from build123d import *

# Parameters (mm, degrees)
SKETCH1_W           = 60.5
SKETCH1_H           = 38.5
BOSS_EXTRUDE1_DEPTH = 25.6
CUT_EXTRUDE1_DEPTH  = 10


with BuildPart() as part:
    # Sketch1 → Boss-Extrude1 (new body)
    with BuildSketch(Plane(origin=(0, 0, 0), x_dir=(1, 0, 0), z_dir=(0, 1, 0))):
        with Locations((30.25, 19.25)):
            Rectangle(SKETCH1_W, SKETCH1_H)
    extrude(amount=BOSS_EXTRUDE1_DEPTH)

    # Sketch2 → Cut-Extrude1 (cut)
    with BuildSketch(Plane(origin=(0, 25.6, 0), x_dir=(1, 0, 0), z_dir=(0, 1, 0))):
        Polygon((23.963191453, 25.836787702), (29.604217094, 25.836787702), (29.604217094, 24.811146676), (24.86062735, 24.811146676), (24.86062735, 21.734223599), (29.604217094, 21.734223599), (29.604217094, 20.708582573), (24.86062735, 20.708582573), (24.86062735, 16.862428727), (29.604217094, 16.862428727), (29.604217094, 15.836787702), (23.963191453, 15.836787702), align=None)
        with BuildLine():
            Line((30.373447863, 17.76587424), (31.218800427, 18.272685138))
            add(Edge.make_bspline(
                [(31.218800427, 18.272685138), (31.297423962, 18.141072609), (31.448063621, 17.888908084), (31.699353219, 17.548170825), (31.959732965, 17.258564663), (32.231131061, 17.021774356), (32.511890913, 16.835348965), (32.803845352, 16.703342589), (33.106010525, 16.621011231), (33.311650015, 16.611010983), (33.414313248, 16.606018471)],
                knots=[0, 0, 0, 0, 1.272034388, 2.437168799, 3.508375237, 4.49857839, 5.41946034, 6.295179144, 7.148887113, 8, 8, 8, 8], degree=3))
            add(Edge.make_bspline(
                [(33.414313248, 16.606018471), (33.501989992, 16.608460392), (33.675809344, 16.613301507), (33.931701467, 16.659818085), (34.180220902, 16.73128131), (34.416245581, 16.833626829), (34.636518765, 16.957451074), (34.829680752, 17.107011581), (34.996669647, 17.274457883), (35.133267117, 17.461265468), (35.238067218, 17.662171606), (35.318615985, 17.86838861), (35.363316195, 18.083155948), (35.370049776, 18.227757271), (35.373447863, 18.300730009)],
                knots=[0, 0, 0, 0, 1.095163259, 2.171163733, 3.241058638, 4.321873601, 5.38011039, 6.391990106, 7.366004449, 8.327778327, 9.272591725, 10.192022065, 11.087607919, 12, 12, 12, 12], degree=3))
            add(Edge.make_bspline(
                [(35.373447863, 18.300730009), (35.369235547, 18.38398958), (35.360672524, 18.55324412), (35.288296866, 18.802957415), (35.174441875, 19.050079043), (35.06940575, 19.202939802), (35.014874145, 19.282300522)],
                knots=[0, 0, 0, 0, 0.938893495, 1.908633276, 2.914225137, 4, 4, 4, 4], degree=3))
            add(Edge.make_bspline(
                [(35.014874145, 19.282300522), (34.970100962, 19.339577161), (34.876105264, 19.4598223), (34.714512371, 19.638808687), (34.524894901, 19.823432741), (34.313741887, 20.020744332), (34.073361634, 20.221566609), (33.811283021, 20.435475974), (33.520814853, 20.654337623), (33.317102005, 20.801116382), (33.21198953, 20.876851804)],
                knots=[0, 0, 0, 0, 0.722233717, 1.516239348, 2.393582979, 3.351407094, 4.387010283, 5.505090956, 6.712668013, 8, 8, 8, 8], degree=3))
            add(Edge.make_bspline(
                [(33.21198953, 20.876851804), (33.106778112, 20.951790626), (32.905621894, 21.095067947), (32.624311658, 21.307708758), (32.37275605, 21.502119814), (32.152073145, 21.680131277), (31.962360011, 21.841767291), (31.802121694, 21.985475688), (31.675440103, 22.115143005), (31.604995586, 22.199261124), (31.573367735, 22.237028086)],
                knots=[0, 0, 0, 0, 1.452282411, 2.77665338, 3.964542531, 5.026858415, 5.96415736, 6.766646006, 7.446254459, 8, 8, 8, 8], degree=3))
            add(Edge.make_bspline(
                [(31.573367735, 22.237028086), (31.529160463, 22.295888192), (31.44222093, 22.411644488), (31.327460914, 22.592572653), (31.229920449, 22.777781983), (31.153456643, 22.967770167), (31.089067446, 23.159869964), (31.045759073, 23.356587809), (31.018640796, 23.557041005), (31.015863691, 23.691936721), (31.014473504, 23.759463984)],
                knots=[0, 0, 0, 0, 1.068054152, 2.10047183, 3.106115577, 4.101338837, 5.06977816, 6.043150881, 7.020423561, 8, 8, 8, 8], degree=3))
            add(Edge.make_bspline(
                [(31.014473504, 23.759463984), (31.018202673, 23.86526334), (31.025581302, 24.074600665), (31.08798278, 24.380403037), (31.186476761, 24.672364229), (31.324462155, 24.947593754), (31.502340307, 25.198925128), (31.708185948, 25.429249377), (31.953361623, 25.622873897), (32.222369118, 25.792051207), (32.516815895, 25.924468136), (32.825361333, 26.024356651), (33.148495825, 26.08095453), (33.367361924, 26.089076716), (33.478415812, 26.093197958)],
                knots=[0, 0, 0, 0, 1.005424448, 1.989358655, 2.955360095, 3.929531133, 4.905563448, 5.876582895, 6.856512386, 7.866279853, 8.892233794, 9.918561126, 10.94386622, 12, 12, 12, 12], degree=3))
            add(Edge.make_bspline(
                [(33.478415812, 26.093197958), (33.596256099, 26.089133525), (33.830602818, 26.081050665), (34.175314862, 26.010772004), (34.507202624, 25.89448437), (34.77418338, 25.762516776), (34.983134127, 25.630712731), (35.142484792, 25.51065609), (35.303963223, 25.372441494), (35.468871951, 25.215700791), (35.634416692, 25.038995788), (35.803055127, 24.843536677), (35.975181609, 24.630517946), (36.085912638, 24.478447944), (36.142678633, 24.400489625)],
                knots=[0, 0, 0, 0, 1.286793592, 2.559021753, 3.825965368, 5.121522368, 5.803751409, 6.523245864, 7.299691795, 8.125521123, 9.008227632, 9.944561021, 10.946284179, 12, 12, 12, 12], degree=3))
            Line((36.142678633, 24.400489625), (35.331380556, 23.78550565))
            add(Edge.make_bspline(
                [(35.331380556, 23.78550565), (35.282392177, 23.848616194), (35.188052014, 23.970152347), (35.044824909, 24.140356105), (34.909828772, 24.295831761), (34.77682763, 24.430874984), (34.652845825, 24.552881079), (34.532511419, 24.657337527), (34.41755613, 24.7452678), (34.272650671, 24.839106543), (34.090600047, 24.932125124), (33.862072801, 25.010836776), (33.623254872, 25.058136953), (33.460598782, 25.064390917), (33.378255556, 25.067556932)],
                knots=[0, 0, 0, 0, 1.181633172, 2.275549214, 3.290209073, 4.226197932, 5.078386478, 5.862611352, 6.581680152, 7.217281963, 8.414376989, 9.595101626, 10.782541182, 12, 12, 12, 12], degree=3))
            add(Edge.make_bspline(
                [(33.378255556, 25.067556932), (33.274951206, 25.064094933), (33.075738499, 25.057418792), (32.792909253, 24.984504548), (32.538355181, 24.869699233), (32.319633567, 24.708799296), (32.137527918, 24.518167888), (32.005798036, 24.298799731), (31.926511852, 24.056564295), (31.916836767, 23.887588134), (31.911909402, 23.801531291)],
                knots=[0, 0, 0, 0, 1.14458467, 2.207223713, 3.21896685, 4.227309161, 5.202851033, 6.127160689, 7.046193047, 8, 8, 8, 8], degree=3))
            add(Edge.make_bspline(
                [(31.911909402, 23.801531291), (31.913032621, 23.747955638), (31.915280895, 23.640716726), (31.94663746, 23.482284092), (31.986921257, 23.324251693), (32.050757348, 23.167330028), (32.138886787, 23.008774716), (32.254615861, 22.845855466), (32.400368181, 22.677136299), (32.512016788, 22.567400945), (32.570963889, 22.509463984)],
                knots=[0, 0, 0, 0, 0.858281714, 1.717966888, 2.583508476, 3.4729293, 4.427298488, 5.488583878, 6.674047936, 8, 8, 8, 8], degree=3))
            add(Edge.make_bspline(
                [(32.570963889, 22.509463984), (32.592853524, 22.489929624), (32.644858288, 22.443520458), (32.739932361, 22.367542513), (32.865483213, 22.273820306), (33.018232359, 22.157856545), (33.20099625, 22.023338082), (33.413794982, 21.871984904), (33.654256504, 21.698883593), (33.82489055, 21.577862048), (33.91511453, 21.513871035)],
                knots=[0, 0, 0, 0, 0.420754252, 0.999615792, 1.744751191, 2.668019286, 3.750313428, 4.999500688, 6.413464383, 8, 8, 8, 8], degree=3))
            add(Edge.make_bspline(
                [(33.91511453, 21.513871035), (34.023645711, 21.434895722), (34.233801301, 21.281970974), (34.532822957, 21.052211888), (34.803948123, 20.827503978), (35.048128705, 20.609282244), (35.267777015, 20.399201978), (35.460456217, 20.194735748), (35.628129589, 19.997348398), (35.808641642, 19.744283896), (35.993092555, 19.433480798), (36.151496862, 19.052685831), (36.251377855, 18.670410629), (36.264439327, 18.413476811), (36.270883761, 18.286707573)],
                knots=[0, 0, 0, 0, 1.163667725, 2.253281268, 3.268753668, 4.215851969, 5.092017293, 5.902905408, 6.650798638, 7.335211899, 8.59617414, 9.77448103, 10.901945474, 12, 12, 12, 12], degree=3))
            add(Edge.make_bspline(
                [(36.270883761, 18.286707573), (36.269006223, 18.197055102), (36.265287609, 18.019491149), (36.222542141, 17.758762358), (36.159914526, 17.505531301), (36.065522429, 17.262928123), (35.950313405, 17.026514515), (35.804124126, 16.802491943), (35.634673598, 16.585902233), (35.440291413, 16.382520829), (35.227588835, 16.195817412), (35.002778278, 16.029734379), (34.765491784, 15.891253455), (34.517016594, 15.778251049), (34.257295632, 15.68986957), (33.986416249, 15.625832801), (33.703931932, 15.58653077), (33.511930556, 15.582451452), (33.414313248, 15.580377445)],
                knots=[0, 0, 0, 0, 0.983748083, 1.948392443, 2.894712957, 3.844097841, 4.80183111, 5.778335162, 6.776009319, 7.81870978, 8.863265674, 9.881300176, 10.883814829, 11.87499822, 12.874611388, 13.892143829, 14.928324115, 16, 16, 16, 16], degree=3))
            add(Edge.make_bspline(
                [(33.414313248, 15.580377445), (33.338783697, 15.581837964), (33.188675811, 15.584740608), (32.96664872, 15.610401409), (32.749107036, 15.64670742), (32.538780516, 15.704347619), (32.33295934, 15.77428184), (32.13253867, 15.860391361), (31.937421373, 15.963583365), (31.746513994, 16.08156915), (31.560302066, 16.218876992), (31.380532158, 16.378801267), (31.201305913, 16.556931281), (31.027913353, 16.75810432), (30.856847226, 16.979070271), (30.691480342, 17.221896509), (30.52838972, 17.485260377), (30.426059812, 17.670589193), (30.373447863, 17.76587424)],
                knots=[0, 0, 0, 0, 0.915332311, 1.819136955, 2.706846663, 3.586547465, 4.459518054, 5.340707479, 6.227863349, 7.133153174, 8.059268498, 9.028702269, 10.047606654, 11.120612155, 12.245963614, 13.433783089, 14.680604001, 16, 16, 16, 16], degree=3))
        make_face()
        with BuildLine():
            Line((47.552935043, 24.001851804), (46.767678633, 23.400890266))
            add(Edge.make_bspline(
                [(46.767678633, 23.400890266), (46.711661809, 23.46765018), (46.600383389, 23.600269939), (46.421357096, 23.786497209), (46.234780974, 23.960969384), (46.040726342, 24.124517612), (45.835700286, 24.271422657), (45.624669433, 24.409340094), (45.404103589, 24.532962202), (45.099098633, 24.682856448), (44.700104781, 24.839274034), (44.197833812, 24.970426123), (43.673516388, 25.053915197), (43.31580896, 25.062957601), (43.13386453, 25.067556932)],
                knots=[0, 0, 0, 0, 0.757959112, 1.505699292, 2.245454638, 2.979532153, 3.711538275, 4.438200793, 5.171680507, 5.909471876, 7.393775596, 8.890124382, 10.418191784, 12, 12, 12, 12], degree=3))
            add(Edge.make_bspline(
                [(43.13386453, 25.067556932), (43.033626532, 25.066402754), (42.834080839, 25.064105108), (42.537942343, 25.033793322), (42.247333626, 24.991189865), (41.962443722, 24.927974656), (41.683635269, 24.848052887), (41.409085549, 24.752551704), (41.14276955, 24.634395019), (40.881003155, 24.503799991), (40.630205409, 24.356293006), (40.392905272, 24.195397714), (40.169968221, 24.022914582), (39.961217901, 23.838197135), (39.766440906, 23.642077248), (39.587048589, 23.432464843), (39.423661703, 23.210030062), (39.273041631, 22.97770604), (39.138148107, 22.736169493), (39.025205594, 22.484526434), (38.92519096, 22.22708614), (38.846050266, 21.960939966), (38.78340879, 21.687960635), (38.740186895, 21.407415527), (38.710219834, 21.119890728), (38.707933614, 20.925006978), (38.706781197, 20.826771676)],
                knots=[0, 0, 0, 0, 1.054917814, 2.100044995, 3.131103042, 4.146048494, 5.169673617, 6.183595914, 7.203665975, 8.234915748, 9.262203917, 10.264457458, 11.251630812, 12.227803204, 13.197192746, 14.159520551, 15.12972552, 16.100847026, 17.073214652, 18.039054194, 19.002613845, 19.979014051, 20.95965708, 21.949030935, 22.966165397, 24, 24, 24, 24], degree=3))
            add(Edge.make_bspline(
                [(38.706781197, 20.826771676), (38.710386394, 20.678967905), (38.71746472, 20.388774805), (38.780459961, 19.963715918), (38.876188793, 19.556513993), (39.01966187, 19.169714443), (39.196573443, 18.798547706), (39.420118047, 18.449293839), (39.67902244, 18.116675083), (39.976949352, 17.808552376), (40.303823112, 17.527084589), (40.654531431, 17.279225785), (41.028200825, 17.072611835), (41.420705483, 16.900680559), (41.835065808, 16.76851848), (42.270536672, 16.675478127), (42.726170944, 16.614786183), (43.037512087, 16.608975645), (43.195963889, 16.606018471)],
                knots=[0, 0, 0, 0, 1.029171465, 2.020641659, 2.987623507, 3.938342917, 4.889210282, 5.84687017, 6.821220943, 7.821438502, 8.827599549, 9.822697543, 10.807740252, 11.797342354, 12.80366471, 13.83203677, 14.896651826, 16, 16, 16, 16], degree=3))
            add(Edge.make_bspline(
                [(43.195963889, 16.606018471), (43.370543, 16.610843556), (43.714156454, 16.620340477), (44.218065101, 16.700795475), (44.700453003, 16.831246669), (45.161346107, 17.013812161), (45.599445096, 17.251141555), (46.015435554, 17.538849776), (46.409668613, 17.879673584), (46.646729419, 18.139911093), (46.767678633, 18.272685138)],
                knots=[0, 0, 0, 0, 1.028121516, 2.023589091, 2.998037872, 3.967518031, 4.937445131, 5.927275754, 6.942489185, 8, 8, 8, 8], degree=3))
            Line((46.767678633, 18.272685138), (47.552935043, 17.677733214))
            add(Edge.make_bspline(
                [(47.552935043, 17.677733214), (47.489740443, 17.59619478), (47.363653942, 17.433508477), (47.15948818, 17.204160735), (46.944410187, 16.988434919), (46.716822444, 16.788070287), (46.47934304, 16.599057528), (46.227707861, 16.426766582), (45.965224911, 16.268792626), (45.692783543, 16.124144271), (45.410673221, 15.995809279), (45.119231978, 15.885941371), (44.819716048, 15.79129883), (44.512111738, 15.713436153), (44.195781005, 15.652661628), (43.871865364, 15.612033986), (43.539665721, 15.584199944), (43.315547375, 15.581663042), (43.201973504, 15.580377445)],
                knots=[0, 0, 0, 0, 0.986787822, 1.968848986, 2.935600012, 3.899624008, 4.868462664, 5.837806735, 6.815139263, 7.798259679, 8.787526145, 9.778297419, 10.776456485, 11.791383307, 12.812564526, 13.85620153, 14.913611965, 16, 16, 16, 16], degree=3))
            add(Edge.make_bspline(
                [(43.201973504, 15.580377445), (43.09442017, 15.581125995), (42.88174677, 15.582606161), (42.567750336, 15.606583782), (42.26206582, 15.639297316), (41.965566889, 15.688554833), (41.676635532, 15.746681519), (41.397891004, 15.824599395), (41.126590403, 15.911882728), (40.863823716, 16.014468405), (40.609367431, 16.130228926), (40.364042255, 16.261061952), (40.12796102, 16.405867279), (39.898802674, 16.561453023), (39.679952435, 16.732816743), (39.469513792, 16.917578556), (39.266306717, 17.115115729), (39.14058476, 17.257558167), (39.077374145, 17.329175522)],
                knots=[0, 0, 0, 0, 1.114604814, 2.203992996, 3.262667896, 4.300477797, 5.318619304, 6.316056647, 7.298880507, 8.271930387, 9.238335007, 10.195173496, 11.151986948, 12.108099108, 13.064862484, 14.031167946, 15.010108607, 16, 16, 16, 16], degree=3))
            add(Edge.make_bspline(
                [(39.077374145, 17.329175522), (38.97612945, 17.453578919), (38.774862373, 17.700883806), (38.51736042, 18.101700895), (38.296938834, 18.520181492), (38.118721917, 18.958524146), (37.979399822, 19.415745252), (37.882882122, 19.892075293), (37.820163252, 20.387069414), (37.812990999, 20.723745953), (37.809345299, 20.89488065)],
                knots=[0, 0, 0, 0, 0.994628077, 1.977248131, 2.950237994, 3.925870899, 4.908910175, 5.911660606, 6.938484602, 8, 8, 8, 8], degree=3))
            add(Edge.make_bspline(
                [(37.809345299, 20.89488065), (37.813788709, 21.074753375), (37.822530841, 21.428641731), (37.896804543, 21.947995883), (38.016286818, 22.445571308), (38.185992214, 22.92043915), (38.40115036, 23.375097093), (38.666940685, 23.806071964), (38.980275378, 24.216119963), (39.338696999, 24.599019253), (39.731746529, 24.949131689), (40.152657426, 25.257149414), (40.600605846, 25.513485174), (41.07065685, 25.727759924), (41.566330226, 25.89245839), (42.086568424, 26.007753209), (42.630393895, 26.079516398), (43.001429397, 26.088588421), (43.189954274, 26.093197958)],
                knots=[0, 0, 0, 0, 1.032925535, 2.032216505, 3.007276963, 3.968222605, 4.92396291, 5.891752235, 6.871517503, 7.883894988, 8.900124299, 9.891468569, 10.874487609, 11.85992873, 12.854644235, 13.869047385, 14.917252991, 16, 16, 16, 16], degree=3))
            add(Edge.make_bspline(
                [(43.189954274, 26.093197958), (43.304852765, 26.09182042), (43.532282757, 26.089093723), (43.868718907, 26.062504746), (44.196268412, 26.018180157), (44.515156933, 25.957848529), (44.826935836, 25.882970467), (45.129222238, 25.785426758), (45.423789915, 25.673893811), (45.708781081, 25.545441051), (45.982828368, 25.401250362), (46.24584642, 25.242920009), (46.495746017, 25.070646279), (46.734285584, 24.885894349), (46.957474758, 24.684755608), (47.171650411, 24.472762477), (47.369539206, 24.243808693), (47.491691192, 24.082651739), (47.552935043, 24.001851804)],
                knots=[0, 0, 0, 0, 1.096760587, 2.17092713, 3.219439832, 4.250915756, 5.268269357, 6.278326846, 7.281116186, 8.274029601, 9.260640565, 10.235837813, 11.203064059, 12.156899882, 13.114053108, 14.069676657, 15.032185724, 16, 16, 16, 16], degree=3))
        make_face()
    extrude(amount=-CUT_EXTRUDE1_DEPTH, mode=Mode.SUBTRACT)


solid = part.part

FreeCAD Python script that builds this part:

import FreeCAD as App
import Part
import Sketcher


def add_polygon(sketch, points):
    """Adds a closed chain of lines whose ends are joined by coincident constraints."""
    first, n = sketch.GeometryCount, len(points)
    for a, b in zip(points, points[1:] + points[:1]):
        sketch.addGeometry(Part.LineSegment(App.Vector(*a, 0), App.Vector(*b, 0)), False)
    for i in range(n):
        sketch.addConstraint(Sketcher.Constraint("Coincident", first + i, 2, first + (i + 1) % n, 1))

doc = App.newDocument("Part")
body = doc.addObject("PartDesign::Body", "Body")

# Sketch on XZ plane
sketch1 = body.newObject("Sketcher::SketchObject", "Sketch")
sketch1.AttachmentSupport = (doc.getObject("XZ_Plane"), [""])
sketch1.MapMode = "FlatFace"
add_polygon(sketch1, [(0, -38), (0, 0), (60, 0), (60, -38)])  # lines 0-3
sketch1.addConstraint(Sketcher.Constraint("Vertical", 0))
sketch1.addConstraint(Sketcher.Constraint("Horizontal", 1))
sketch1.addConstraint(Sketcher.Constraint("Vertical", 2))
sketch1.addConstraint(Sketcher.Constraint("Horizontal", 3))
sketch1.addConstraint(Sketcher.Constraint("Coincident", 0, 2, -1, 1))
sketch1.addConstraint(Sketcher.Constraint("DistanceX", 1, 1, 1, 2, 60.5))
sketch1.addConstraint(Sketcher.Constraint("DistanceY", 0, 1, 0, 2, 38.5))
pad1 = body.newObject("PartDesign::Pad", "Pad")
pad1.Profile = sketch1
pad1.Length = 25.6
pad1.Reversed = True

# Sketch on XZ plane
sketch2 = body.newObject("Sketcher::SketchObject", "Sketch001")
sketch2.AttachmentSupport = (doc.getObject("XZ_Plane"), [""])
sketch2.MapMode = "FlatFace"
sketch2.AttachmentOffset = App.Placement(App.Vector(0, 0, -25.6), App.Rotation())
add_polygon(sketch2, [(29.604217, -25.836788), (23.963191, -25.836788), (23.963191, -15.836788), (29.604217, -15.836788), (29.604217, -16.862429), (24.860627, -16.862429), (24.860627, -20.708583), (29.604217, -20.708583), (29.604217, -21.734224), (24.860627, -21.734224), (24.860627, -24.811147), (29.604217, -24.811147)])  # lines 0-11
sketch2.addGeometry(Part.LineSegment(App.Vector(31.2188, -18.272685, 0), App.Vector(30.373448, -17.765874, 0)), False)  # 12
sketch2.addGeometry(Part.BSplineCurve([App.Vector(33.414313, -15.580377, 0), App.Vector(33.338784, -15.581838, 0), App.Vector(33.188676, -15.584741, 0), App.Vector(32.966649, -15.610401, 0), App.Vector(32.749107, -15.646707, 0), App.Vector(32.538781, -15.704348, 0), App.Vector(32.332959, -15.774282, 0), App.Vector(32.132539, -15.860391, 0), App.Vector(31.937421, -15.963583, 0), App.Vector(31.746514, -16.081569, 0), App.Vector(31.560302, -16.218877, 0), App.Vector(31.380532, -16.378801, 0), App.Vector(31.201306, -16.556931, 0), App.Vector(31.027913, -16.758104, 0), App.Vector(30.856847, -16.97907, 0), App.Vector(30.69148, -17.221897, 0), App.Vector(30.52839, -17.48526, 0), App.Vector(30.42606, -17.670589, 0), App.Vector(30.373448, -17.765874, 0)], [4, 1, 1, 1, 1, 1, 1, 1, 1, 1, 1, 1, 1, 1, 1, 1, 4], [0, 0.915332311, 1.819136955, 2.706846663, 3.586547465, 4.459518054, 5.340707479, 6.227863349, 7.133153174, 8.059268498, 9.028702269, 10.047606654, 11.120612155, 12.245963614, 13.433783089, 14.680604001, 16], False, 3, [1, 1, 1, 1, 1, 1, 1, 1, 1, 1, 1, 1, 1, 1, 1, 1, 1, 1, 1], False), False)  # 13
sketch2.addGeometry(Part.BSplineCurve([App.Vector(36.270884, -18.286708, 0), App.Vector(36.269006, -18.197055, 0), App.Vector(36.265288, -18.019491, 0), App.Vector(36.222542, -17.758762, 0), App.Vector(36.159915, -17.505531, 0), App.Vector(36.065522, -17.262928, 0), App.Vector(35.950313, -17.026515, 0), App.Vector(35.804124, -16.802492, 0), App.Vector(35.634674, -16.585902, 0), App.Vector(35.440291, -16.382521, 0), App.Vector(35.227589, -16.195817, 0), App.Vector(35.002778, -16.029734, 0), App.Vector(34.765492, -15.891253, 0), App.Vector(34.517017, -15.778251, 0), App.Vector(34.257296, -15.68987, 0), App.Vector(33.986416, -15.625833, 0), App.Vector(33.703932, -15.586531, 0), App.Vector(33.511931, -15.582451, 0), App.Vector(33.414313, -15.580377, 0)], [4, 1, 1, 1, 1, 1, 1, 1, 1, 1, 1, 1, 1, 1, 1, 1, 4], [0, 0.983748083, 1.948392443, 2.894712957, 3.844097841, 4.80183111, 5.778335162, 6.776009319, 7.81870978, 8.863265674, 9.881300176, 10.883814829, 11.87499822, 12.874611388, 13.892143829, 14.928324115, 16], False, 3, [1, 1, 1, 1, 1, 1, 1, 1, 1, 1, 1, 1, 1, 1, 1, 1, 1, 1, 1], False), False)  # 14
sketch2.addGeometry(Part.BSplineCurve([App.Vector(33.915115, -21.513871, 0), App.Vector(34.023646, -21.434896, 0), App.Vector(34.233801, -21.281971, 0), App.Vector(34.532823, -21.052212, 0), App.Vector(34.803948, -20.827504, 0), App.Vector(35.048129, -20.609282, 0), App.Vector(35.267777, -20.399202, 0), App.Vector(35.460456, -20.194736, 0), App.Vector(35.62813, -19.997348, 0), App.Vector(35.808642, -19.744284, 0), App.Vector(35.993093, -19.433481, 0), App.Vector(36.151497, -19.052686, 0), App.Vector(36.251378, -18.670411, 0), App.Vector(36.264439, -18.413477, 0), App.Vector(36.270884, -18.286708, 0)], [4, 1, 1, 1, 1, 1, 1, 1, 1, 1, 1, 1, 4], [0, 1.163667725, 2.253281268, 3.268753668, 4.215851969, 5.092017293, 5.902905408, 6.650798638, 7.335211899, 8.59617414, 9.77448103, 10.901945474, 12], False, 3, [1, 1, 1, 1, 1, 1, 1, 1, 1, 1, 1, 1, 1, 1, 1], False), False)  # 15
sketch2.addGeometry(Part.BSplineCurve([App.Vector(32.570964, -22.509464, 0), App.Vector(32.592854, -22.48993, 0), App.Vector(32.644858, -22.44352, 0), App.Vector(32.739932, -22.367543, 0), App.Vector(32.865483, -22.27382, 0), App.Vector(33.018232, -22.157857, 0), App.Vector(33.200996, -22.023338, 0), App.Vector(33.413795, -21.871985, 0), App.Vector(33.654257, -21.698884, 0), App.Vector(33.824891, -21.577862, 0), App.Vector(33.915115, -21.513871, 0)], [4, 1, 1, 1, 1, 1, 1, 1, 4], [0, 0.420754252, 0.999615792, 1.744751191, 2.668019286, 3.750313428, 4.999500688, 6.413464383, 8], False, 3, [1, 1, 1, 1, 1, 1, 1, 1, 1, 1, 1], False), False)  # 16
sketch2.addGeometry(Part.BSplineCurve([App.Vector(31.911909, -23.801531, 0), App.Vector(31.913033, -23.747956, 0), App.Vector(31.915281, -23.640717, 0), App.Vector(31.946637, -23.482284, 0), App.Vector(31.986921, -23.324252, 0), App.Vector(32.050757, -23.16733, 0), App.Vector(32.138887, -23.008775, 0), App.Vector(32.254616, -22.845855, 0), App.Vector(32.400368, -22.677136, 0), App.Vector(32.512017, -22.567401, 0), App.Vector(32.570964, -22.509464, 0)], [4, 1, 1, 1, 1, 1, 1, 1, 4], [0, 0.858281714, 1.717966888, 2.583508476, 3.4729293, 4.427298488, 5.488583878, 6.674047936, 8], False, 3, [1, 1, 1, 1, 1, 1, 1, 1, 1, 1, 1], False), False)  # 17
sketch2.addGeometry(Part.BSplineCurve([App.Vector(33.378256, -25.067557, 0), App.Vector(33.274951, -25.064095, 0), App.Vector(33.075738, -25.057419, 0), App.Vector(32.792909, -24.984505, 0), App.Vector(32.538355, -24.869699, 0), App.Vector(32.319634, -24.708799, 0), App.Vector(32.137528, -24.518168, 0), App.Vector(32.005798, -24.2988, 0), App.Vector(31.926512, -24.056564, 0), App.Vector(31.916837, -23.887588, 0), App.Vector(31.911909, -23.801531, 0)], [4, 1, 1, 1, 1, 1, 1, 1, 4], [0, 1.14458467, 2.207223713, 3.21896685, 4.227309161, 5.202851033, 6.127160689, 7.046193047, 8], False, 3, [1, 1, 1, 1, 1, 1, 1, 1, 1, 1, 1], False), False)  # 18
sketch2.addGeometry(Part.BSplineCurve([App.Vector(35.331381, -23.785506, 0), App.Vector(35.282392, -23.848616, 0), App.Vector(35.188052, -23.970152, 0), App.Vector(35.044825, -24.140356, 0), App.Vector(34.909829, -24.295832, 0), App.Vector(34.776828, -24.430875, 0), App.Vector(34.652846, -24.552881, 0), App.Vector(34.532511, -24.657338, 0), App.Vector(34.417556, -24.745268, 0), App.Vector(34.272651, -24.839107, 0), App.Vector(34.0906, -24.932125, 0), App.Vector(33.862073, -25.010837, 0), App.Vector(33.623255, -25.058137, 0), App.Vector(33.460599, -25.064391, 0), App.Vector(33.378256, -25.067557, 0)], [4, 1, 1, 1, 1, 1, 1, 1, 1, 1, 1, 1, 4], [0, 1.181633172, 2.275549214, 3.290209073, 4.226197932, 5.078386478, 5.862611352, 6.581680152, 7.217281963, 8.414376989, 9.595101626, 10.782541182, 12], False, 3, [1, 1, 1, 1, 1, 1, 1, 1, 1, 1, 1, 1, 1, 1, 1], False), False)  # 19
sketch2.addGeometry(Part.LineSegment(App.Vector(35.331381, -23.785506, 0), App.Vector(36.142679, -24.40049, 0)), False)  # 20
sketch2.addGeometry(Part.BSplineCurve([App.Vector(33.478416, -26.093198, 0), App.Vector(33.596256, -26.089134, 0), App.Vector(33.830603, -26.081051, 0), App.Vector(34.175315, -26.010772, 0), App.Vector(34.507203, -25.894484, 0), App.Vector(34.774183, -25.762517, 0), App.Vector(34.983134, -25.630713, 0), App.Vector(35.142485, -25.510656, 0), App.Vector(35.303963, -25.372441, 0), App.Vector(35.468872, -25.215701, 0), App.Vector(35.634417, -25.038996, 0), App.Vector(35.803055, -24.843537, 0), App.Vector(35.975182, -24.630518, 0), App.Vector(36.085913, -24.478448, 0), App.Vector(36.142679, -24.40049, 0)], [4, 1, 1, 1, 1, 1, 1, 1, 1, 1, 1, 1, 4], [0, 1.286793592, 2.559021753, 3.825965368, 5.121522368, 5.803751409, 6.523245864, 7.299691795, 8.125521123, 9.008227632, 9.944561021, 10.946284179, 12], False, 3, [1, 1, 1, 1, 1, 1, 1, 1, 1, 1, 1, 1, 1, 1, 1], False), False)  # 21
sketch2.addGeometry(Part.BSplineCurve([App.Vector(31.014474, -23.759464, 0), App.Vector(31.018203, -23.865263, 0), App.Vector(31.025581, -24.074601, 0), App.Vector(31.087983, -24.380403, 0), App.Vector(31.186477, -24.672364, 0), App.Vector(31.324462, -24.947594, 0), App.Vector(31.50234, -25.198925, 0), App.Vector(31.708186, -25.429249, 0), App.Vector(31.953362, -25.622874, 0), App.Vector(32.222369, -25.792051, 0), App.Vector(32.516816, -25.924468, 0), App.Vector(32.825361, -26.024357, 0), App.Vector(33.148496, -26.080955, 0), App.Vector(33.367362, -26.089077, 0), App.Vector(33.478416, -26.093198, 0)], [4, 1, 1, 1, 1, 1, 1, 1, 1, 1, 1, 1, 4], [0, 1.005424448, 1.989358655, 2.955360095, 3.929531133, 4.905563448, 5.876582895, 6.856512386, 7.866279853, 8.892233794, 9.918561126, 10.94386622, 12], False, 3, [1, 1, 1, 1, 1, 1, 1, 1, 1, 1, 1, 1, 1, 1, 1], False), False)  # 22
sketch2.addGeometry(Part.BSplineCurve([App.Vector(31.573368, -22.237028, 0), App.Vector(31.52916, -22.295888, 0), App.Vector(31.442221, -22.411644, 0), App.Vector(31.327461, -22.592573, 0), App.Vector(31.22992, -22.777782, 0), App.Vector(31.153457, -22.96777, 0), App.Vector(31.089067, -23.15987, 0), App.Vector(31.045759, -23.356588, 0), App.Vector(31.018641, -23.557041, 0), App.Vector(31.015864, -23.691937, 0), App.Vector(31.014474, -23.759464, 0)], [4, 1, 1, 1, 1, 1, 1, 1, 4], [0, 1.068054152, 2.10047183, 3.106115577, 4.101338837, 5.06977816, 6.043150881, 7.020423561, 8], False, 3, [1, 1, 1, 1, 1, 1, 1, 1, 1, 1, 1], False), False)  # 23
sketch2.addGeometry(Part.BSplineCurve([App.Vector(33.21199, -20.876852, 0), App.Vector(33.106778, -20.951791, 0), App.Vector(32.905622, -21.095068, 0), App.Vector(32.624312, -21.307709, 0), App.Vector(32.372756, -21.50212, 0), App.Vector(32.152073, -21.680131, 0), App.Vector(31.96236, -21.841767, 0), App.Vector(31.802122, -21.985476, 0), App.Vector(31.67544, -22.115143, 0), App.Vector(31.604996, -22.199261, 0), App.Vector(31.573368, -22.237028, 0)], [4, 1, 1, 1, 1, 1, 1, 1, 4], [0, 1.452282411, 2.77665338, 3.964542531, 5.026858415, 5.96415736, 6.766646006, 7.446254459, 8], False, 3, [1, 1, 1, 1, 1, 1, 1, 1, 1, 1, 1], False), False)  # 24
sketch2.addGeometry(Part.BSplineCurve([App.Vector(35.014874, -19.282301, 0), App.Vector(34.970101, -19.339577, 0), App.Vector(34.876105, -19.459822, 0), App.Vector(34.714512, -19.638809, 0), App.Vector(34.524895, -19.823433, 0), App.Vector(34.313742, -20.020744, 0), App.Vector(34.073362, -20.221567, 0), App.Vector(33.811283, -20.435476, 0), App.Vector(33.520815, -20.654338, 0), App.Vector(33.317102, -20.801116, 0), App.Vector(33.21199, -20.876852, 0)], [4, 1, 1, 1, 1, 1, 1, 1, 4], [0, 0.722233717, 1.516239348, 2.393582979, 3.351407094, 4.387010283, 5.505090956, 6.712668013, 8], False, 3, [1, 1, 1, 1, 1, 1, 1, 1, 1, 1, 1], False), False)  # 25
sketch2.addGeometry(Part.BSplineCurve([App.Vector(35.373448, -18.30073, 0), App.Vector(35.369236, -18.38399, 0), App.Vector(35.360673, -18.553244, 0), App.Vector(35.288297, -18.802957, 0), App.Vector(35.174442, -19.050079, 0), App.Vector(35.069406, -19.20294, 0), App.Vector(35.014874, -19.282301, 0)], [4, 1, 1, 1, 4], [0, 0.938893495, 1.908633276, 2.914225137, 4], False, 3, [1, 1, 1, 1, 1, 1, 1], False), False)  # 26
sketch2.addGeometry(Part.BSplineCurve([App.Vector(33.414313, -16.606018, 0), App.Vector(33.50199, -16.60846, 0), App.Vector(33.675809, -16.613302, 0), App.Vector(33.931701, -16.659818, 0), App.Vector(34.180221, -16.731281, 0), App.Vector(34.416246, -16.833627, 0), App.Vector(34.636519, -16.957451, 0), App.Vector(34.829681, -17.107012, 0), App.Vector(34.99667, -17.274458, 0), App.Vector(35.133267, -17.461265, 0), App.Vector(35.238067, -17.662172, 0), App.Vector(35.318616, -17.868389, 0), App.Vector(35.363316, -18.083156, 0), App.Vector(35.37005, -18.227757, 0), App.Vector(35.373448, -18.30073, 0)], [4, 1, 1, 1, 1, 1, 1, 1, 1, 1, 1, 1, 4], [0, 1.095163259, 2.171163733, 3.241058638, 4.321873601, 5.38011039, 6.391990106, 7.366004449, 8.327778327, 9.272591725, 10.192022065, 11.087607919, 12], False, 3, [1, 1, 1, 1, 1, 1, 1, 1, 1, 1, 1, 1, 1, 1, 1], False), False)  # 27
sketch2.addGeometry(Part.BSplineCurve([App.Vector(31.2188, -18.272685, 0), App.Vector(31.297424, -18.141073, 0), App.Vector(31.448064, -17.888908, 0), App.Vector(31.699353, -17.548171, 0), App.Vector(31.959733, -17.258565, 0), App.Vector(32.231131, -17.021774, 0), App.Vector(32.511891, -16.835349, 0), App.Vector(32.803845, -16.703343, 0), App.Vector(33.106011, -16.621011, 0), App.Vector(33.31165, -16.611011, 0), App.Vector(33.414313, -16.606018, 0)], [4, 1, 1, 1, 1, 1, 1, 1, 4], [0, 1.272034388, 2.437168799, 3.508375237, 4.49857839, 5.41946034, 6.295179144, 7.148887113, 8], False, 3, [1, 1, 1, 1, 1, 1, 1, 1, 1, 1, 1], False), False)  # 28
sketch2.addGeometry(Part.LineSegment(App.Vector(46.767679, -23.40089, 0), App.Vector(47.552935, -24.001852, 0)), False)  # 29
sketch2.addGeometry(Part.BSplineCurve([App.Vector(43.189954, -26.093198, 0), App.Vector(43.304853, -26.09182, 0), App.Vector(43.532283, -26.089094, 0), App.Vector(43.868719, -26.062505, 0), App.Vector(44.196268, -26.01818, 0), App.Vector(44.515157, -25.957849, 0), App.Vector(44.826936, -25.88297, 0), App.Vector(45.129222, -25.785427, 0), App.Vector(45.42379, -25.673894, 0), App.Vector(45.708781, -25.545441, 0), App.Vector(45.982828, -25.40125, 0), App.Vector(46.245846, -25.24292, 0), App.Vector(46.495746, -25.070646, 0), App.Vector(46.734286, -24.885894, 0), App.Vector(46.957475, -24.684756, 0), App.Vector(47.17165, -24.472762, 0), App.Vector(47.369539, -24.243809, 0), App.Vector(47.491691, -24.082652, 0), App.Vector(47.552935, -24.001852, 0)], [4, 1, 1, 1, 1, 1, 1, 1, 1, 1, 1, 1, 1, 1, 1, 1, 4], [0, 1.096760587, 2.17092713, 3.219439832, 4.250915756, 5.268269357, 6.278326846, 7.281116186, 8.274029601, 9.260640565, 10.235837813, 11.203064059, 12.156899882, 13.114053108, 14.069676657, 15.032185724, 16], False, 3, [1, 1, 1, 1, 1, 1, 1, 1, 1, 1, 1, 1, 1, 1, 1, 1, 1, 1, 1], False), False)  # 30
sketch2.addGeometry(Part.BSplineCurve([App.Vector(37.809345, -20.894881, 0), App.Vector(37.813789, -21.074753, 0), App.Vector(37.822531, -21.428642, 0), App.Vector(37.896805, -21.947996, 0), App.Vector(38.016287, -22.445571, 0), App.Vector(38.185992, -22.920439, 0), App.Vector(38.40115, -23.375097, 0), App.Vector(38.666941, -23.806072, 0), App.Vector(38.980275, -24.21612, 0), App.Vector(39.338697, -24.599019, 0), App.Vector(39.731747, -24.949132, 0), App.Vector(40.152657, -25.257149, 0), App.Vector(40.600606, -25.513485, 0), App.Vector(41.070657, -25.72776, 0), App.Vector(41.56633, -25.892458, 0), App.Vector(42.086568, -26.007753, 0), App.Vector(42.630394, -26.079516, 0), App.Vector(43.001429, -26.088588, 0), App.Vector(43.189954, -26.093198, 0)], [4, 1, 1, 1, 1, 1, 1, 1, 1, 1, 1, 1, 1, 1, 1, 1, 4], [0, 1.032925535, 2.032216505, 3.007276963, 3.968222605, 4.92396291, 5.891752235, 6.871517503, 7.883894988, 8.900124299, 9.891468569, 10.874487609, 11.85992873, 12.854644235, 13.869047385, 14.917252991, 16], False, 3, [1, 1, 1, 1, 1, 1, 1, 1, 1, 1, 1, 1, 1, 1, 1, 1, 1, 1, 1], False), False)  # 31
sketch2.addGeometry(Part.BSplineCurve([App.Vector(39.077374, -17.329176, 0), App.Vector(38.976129, -17.453579, 0), App.Vector(38.774862, -17.700884, 0), App.Vector(38.51736, -18.101701, 0), App.Vector(38.296939, -18.520181, 0), App.Vector(38.118722, -18.958524, 0), App.Vector(37.9794, -19.415745, 0), App.Vector(37.882882, -19.892075, 0), App.Vector(37.820163, -20.387069, 0), App.Vector(37.812991, -20.723746, 0), App.Vector(37.809345, -20.894881, 0)], [4, 1, 1, 1, 1, 1, 1, 1, 4], [0, 0.994628077, 1.977248131, 2.950237994, 3.925870899, 4.908910175, 5.911660606, 6.938484602, 8], False, 3, [1, 1, 1, 1, 1, 1, 1, 1, 1, 1, 1], False), False)  # 32
sketch2.addGeometry(Part.BSplineCurve([App.Vector(43.201974, -15.580377, 0), App.Vector(43.09442, -15.581126, 0), App.Vector(42.881747, -15.582606, 0), App.Vector(42.56775, -15.606584, 0), App.Vector(42.262066, -15.639297, 0), App.Vector(41.965567, -15.688555, 0), App.Vector(41.676636, -15.746682, 0), App.Vector(41.397891, -15.824599, 0), App.Vector(41.12659, -15.911883, 0), App.Vector(40.863824, -16.014468, 0), App.Vector(40.609367, -16.130229, 0), App.Vector(40.364042, -16.261062, 0), App.Vector(40.127961, -16.405867, 0), App.Vector(39.898803, -16.561453, 0), App.Vector(39.679952, -16.732817, 0), App.Vector(39.469514, -16.917579, 0), App.Vector(39.266307, -17.115116, 0), App.Vector(39.140585, -17.257558, 0), App.Vector(39.077374, -17.329176, 0)], [4, 1, 1, 1, 1, 1, 1, 1, 1, 1, 1, 1, 1, 1, 1, 1, 4], [0, 1.114604814, 2.203992996, 3.262667896, 4.300477797, 5.318619304, 6.316056647, 7.298880507, 8.271930387, 9.238335007, 10.195173496, 11.151986948, 12.108099108, 13.064862484, 14.031167946, 15.010108607, 16], False, 3, [1, 1, 1, 1, 1, 1, 1, 1, 1, 1, 1, 1, 1, 1, 1, 1, 1, 1, 1], False), False)  # 33
sketch2.addGeometry(Part.BSplineCurve([App.Vector(47.552935, -17.677733, 0), App.Vector(47.48974, -17.596195, 0), App.Vector(47.363654, -17.433508, 0), App.Vector(47.159488, -17.204161, 0), App.Vector(46.94441, -16.988435, 0), App.Vector(46.716822, -16.78807, 0), App.Vector(46.479343, -16.599058, 0), App.Vector(46.227708, -16.426767, 0), App.Vector(45.965225, -16.268793, 0), App.Vector(45.692784, -16.124144, 0), App.Vector(45.410673, -15.995809, 0), App.Vector(45.119232, -15.885941, 0), App.Vector(44.819716, -15.791299, 0), App.Vector(44.512112, -15.713436, 0), App.Vector(44.195781, -15.652662, 0), App.Vector(43.871865, -15.612034, 0), App.Vector(43.539666, -15.5842, 0), App.Vector(43.315547, -15.581663, 0), App.Vector(43.201974, -15.580377, 0)], [4, 1, 1, 1, 1, 1, 1, 1, 1, 1, 1, 1, 1, 1, 1, 1, 4], [0, 0.986787822, 1.968848986, 2.935600012, 3.899624008, 4.868462664, 5.837806735, 6.815139263, 7.798259679, 8.787526145, 9.778297419, 10.776456485, 11.791383307, 12.812564526, 13.85620153, 14.913611965, 16], False, 3, [1, 1, 1, 1, 1, 1, 1, 1, 1, 1, 1, 1, 1, 1, 1, 1, 1, 1, 1], False), False)  # 34
sketch2.addGeometry(Part.LineSegment(App.Vector(47.552935, -17.677733, 0), App.Vector(46.767679, -18.272685, 0)), False)  # 35
sketch2.addGeometry(Part.BSplineCurve([App.Vector(43.195964, -16.606018, 0), App.Vector(43.370543, -16.610844, 0), App.Vector(43.714156, -16.62034, 0), App.Vector(44.218065, -16.700795, 0), App.Vector(44.700453, -16.831247, 0), App.Vector(45.161346, -17.013812, 0), App.Vector(45.599445, -17.251142, 0), App.Vector(46.015436, -17.53885, 0), App.Vector(46.409669, -17.879674, 0), App.Vector(46.646729, -18.139911, 0), App.Vector(46.767679, -18.272685, 0)], [4, 1, 1, 1, 1, 1, 1, 1, 4], [0, 1.028121516, 2.023589091, 2.998037872, 3.967518031, 4.937445131, 5.927275754, 6.942489185, 8], False, 3, [1, 1, 1, 1, 1, 1, 1, 1, 1, 1, 1], False), False)  # 36
sketch2.addGeometry(Part.BSplineCurve([App.Vector(38.706781, -20.826772, 0), App.Vector(38.710386, -20.678968, 0), App.Vector(38.717465, -20.388775, 0), App.Vector(38.78046, -19.963716, 0), App.Vector(38.876189, -19.556514, 0), App.Vector(39.019662, -19.169714, 0), App.Vector(39.196573, -18.798548, 0), App.Vector(39.420118, -18.449294, 0), App.Vector(39.679022, -18.116675, 0), App.Vector(39.976949, -17.808552, 0), App.Vector(40.303823, -17.527085, 0), App.Vector(40.654531, -17.279226, 0), App.Vector(41.028201, -17.072612, 0), App.Vector(41.420705, -16.900681, 0), App.Vector(41.835066, -16.768518, 0), App.Vector(42.270537, -16.675478, 0), App.Vector(42.726171, -16.614786, 0), App.Vector(43.037512, -16.608976, 0), App.Vector(43.195964, -16.606018, 0)], [4, 1, 1, 1, 1, 1, 1, 1, 1, 1, 1, 1, 1, 1, 1, 1, 4], [0, 1.029171465, 2.020641659, 2.987623507, 3.938342917, 4.889210282, 5.84687017, 6.821220943, 7.821438502, 8.827599549, 9.822697543, 10.807740252, 11.797342354, 12.80366471, 13.83203677, 14.896651826, 16], False, 3, [1, 1, 1, 1, 1, 1, 1, 1, 1, 1, 1, 1, 1, 1, 1, 1, 1, 1, 1], False), False)  # 37
sketch2.addGeometry(Part.BSplineCurve([App.Vector(43.133865, -25.067557, 0), App.Vector(43.033627, -25.066403, 0), App.Vector(42.834081, -25.064105, 0), App.Vector(42.537942, -25.033793, 0), App.Vector(42.247334, -24.99119, 0), App.Vector(41.962444, -24.927975, 0), App.Vector(41.683635, -24.848053, 0), App.Vector(41.409086, -24.752552, 0), App.Vector(41.14277, -24.634395, 0), App.Vector(40.881003, -24.5038, 0), App.Vector(40.630205, -24.356293, 0), App.Vector(40.392905, -24.195398, 0), App.Vector(40.169968, -24.022915, 0), App.Vector(39.961218, -23.838197, 0), App.Vector(39.766441, -23.642077, 0), App.Vector(39.587049, -23.432465, 0), App.Vector(39.423662, -23.21003, 0), App.Vector(39.273042, -22.977706, 0), App.Vector(39.138148, -22.736169, 0), App.Vector(39.025206, -22.484526, 0), App.Vector(38.925191, -22.227086, 0), App.Vector(38.84605, -21.96094, 0), App.Vector(38.783409, -21.687961, 0), App.Vector(38.740187, -21.407416, 0), App.Vector(38.71022, -21.119891, 0), App.Vector(38.707934, -20.925007, 0), App.Vector(38.706781, -20.826772, 0)], [4, 1, 1, 1, 1, 1, 1, 1, 1, 1, 1, 1, 1, 1, 1, 1, 1, 1, 1, 1, 1, 1, 1, 1, 4], [0, 1.054917814, 2.100044995, 3.131103042, 4.146048494, 5.169673617, 6.183595914, 7.203665975, 8.234915748, 9.262203917, 10.264457458, 11.251630812, 12.227803204, 13.197192746, 14.159520551, 15.12972552, 16.100847026, 17.073214652, 18.039054194, 19.002613845, 19.979014051, 20.95965708, 21.949030935, 22.966165397, 24], False, 3, [1, 1, 1, 1, 1, 1, 1, 1, 1, 1, 1, 1, 1, 1, 1, 1, 1, 1, 1, 1, 1, 1, 1, 1, 1, 1, 1], False), False)  # 38
sketch2.addGeometry(Part.BSplineCurve([App.Vector(46.767679, -23.40089, 0), App.Vector(46.711662, -23.46765, 0), App.Vector(46.600383, -23.60027, 0), App.Vector(46.421357, -23.786497, 0), App.Vector(46.234781, -23.960969, 0), App.Vector(46.040726, -24.124518, 0), App.Vector(45.8357, -24.271423, 0), App.Vector(45.624669, -24.40934, 0), App.Vector(45.404104, -24.532962, 0), App.Vector(45.099099, -24.682856, 0), App.Vector(44.700105, -24.839274, 0), App.Vector(44.197834, -24.970426, 0), App.Vector(43.673516, -25.053915, 0), App.Vector(43.315809, -25.062958, 0), App.Vector(43.133865, -25.067557, 0)], [4, 1, 1, 1, 1, 1, 1, 1, 1, 1, 1, 1, 4], [0, 0.757959112, 1.505699292, 2.245454638, 2.979532153, 3.711538275, 4.438200793, 5.171680507, 5.909471876, 7.393775596, 8.890124382, 10.418191784, 12], False, 3, [1, 1, 1, 1, 1, 1, 1, 1, 1, 1, 1, 1, 1, 1, 1], False), False)  # 39
sketch2.addConstraint(Sketcher.Constraint("Block", 13))
sketch2.addConstraint(Sketcher.Constraint("Block", 14))
sketch2.addConstraint(Sketcher.Constraint("Block", 15))
sketch2.addConstraint(Sketcher.Constraint("Block", 16))
sketch2.addConstraint(Sketcher.Constraint("Block", 17))
sketch2.addConstraint(Sketcher.Constraint("Block", 18))
sketch2.addConstraint(Sketcher.Constraint("Block", 19))
sketch2.addConstraint(Sketcher.Constraint("Block", 21))
sketch2.addConstraint(Sketcher.Constraint("Block", 22))
sketch2.addConstraint(Sketcher.Constraint("Block", 23))
sketch2.addConstraint(Sketcher.Constraint("Block", 24))
sketch2.addConstraint(Sketcher.Constraint("Block", 25))
sketch2.addConstraint(Sketcher.Constraint("Block", 26))
sketch2.addConstraint(Sketcher.Constraint("Block", 27))
sketch2.addConstraint(Sketcher.Constraint("Block", 28))
sketch2.addConstraint(Sketcher.Constraint("Block", 30))
sketch2.addConstraint(Sketcher.Constraint("Block", 31))
sketch2.addConstraint(Sketcher.Constraint("Block", 32))
sketch2.addConstraint(Sketcher.Constraint("Block", 33))
sketch2.addConstraint(Sketcher.Constraint("Block", 34))
sketch2.addConstraint(Sketcher.Constraint("Block", 36))
sketch2.addConstraint(Sketcher.Constraint("Block", 37))
sketch2.addConstraint(Sketcher.Constraint("Block", 38))
sketch2.addConstraint(Sketcher.Constraint("Block", 39))
sketch2.addConstraint(Sketcher.Constraint("Coincident", 12, 2, 13, 2))
sketch2.addConstraint(Sketcher.Constraint("Coincident", 19, 1, 20, 1))
sketch2.addConstraint(Sketcher.Constraint("Coincident", 20, 2, 21, 2))
sketch2.addConstraint(Sketcher.Constraint("Coincident", 28, 1, 12, 1))
sketch2.addConstraint(Sketcher.Constraint("Coincident", 29, 2, 30, 2))
sketch2.addConstraint(Sketcher.Constraint("Coincident", 34, 1, 35, 1))
sketch2.addConstraint(Sketcher.Constraint("Coincident", 35, 2, 36, 2))
sketch2.addConstraint(Sketcher.Constraint("Coincident", 39, 1, 29, 1))
sketch2.addConstraint(Sketcher.Constraint("Horizontal", 0))
sketch2.addConstraint(Sketcher.Constraint("Vertical", 1))
sketch2.addConstraint(Sketcher.Constraint("Horizontal", 2))
sketch2.addConstraint(Sketcher.Constraint("Vertical", 3))
sketch2.addConstraint(Sketcher.Constraint("Horizontal", 4))
sketch2.addConstraint(Sketcher.Constraint("Vertical", 5))
sketch2.addConstraint(Sketcher.Constraint("Horizontal", 6))
sketch2.addConstraint(Sketcher.Constraint("Vertical", 7))
sketch2.addConstraint(Sketcher.Constraint("Horizontal", 8))
sketch2.addConstraint(Sketcher.Constraint("Vertical", 9))
sketch2.addConstraint(Sketcher.Constraint("Horizontal", 10))
sketch2.addConstraint(Sketcher.Constraint("Vertical", 11))
sketch2.addConstraint(Sketcher.Constraint("Vertical", 3, 2, 6, 2))
sketch2.addConstraint(Sketcher.Constraint("Vertical", 5, 2, 8, 2))
sketch2.addConstraint(Sketcher.Constraint("Vertical", 7, 2, 10, 2))
sketch2.addConstraint(Sketcher.Constraint("Equal", 3, 7))
sketch2.addConstraint(Sketcher.Constraint("Equal", 7, 11))
sketch2.addConstraint(Sketcher.Constraint("DistanceY", 1, 1, 1, 2, 10.0))
sketch2.addConstraint(Sketcher.Constraint("DistanceX", 4, 2, 4, 1, 4.74359))
sketch2.addConstraint(Sketcher.Constraint("DistanceY", 3, 2, 3, 1, 1.025641))
sketch2.addConstraint(Sketcher.Constraint("DistanceY", 11, 2, 20, 2, 1.436298))
sketch2.addConstraint(Sketcher.Constraint("DistanceX", 0, 2, 0, 1, 5.641026))
sketch2.addConstraint(Sketcher.Constraint("DistanceY", 5, 2, 5, 1, 3.846154))
sketch2.addConstraint(Sketcher.Constraint("DistanceX", -1, 1, 0, 2, 23.963191))
pocket1 = body.newObject("PartDesign::Pocket", "Pocket")
pocket1.Profile = sketch2
pocket1.Length = 10
pocket1.Reversed = True

doc.recompute()
